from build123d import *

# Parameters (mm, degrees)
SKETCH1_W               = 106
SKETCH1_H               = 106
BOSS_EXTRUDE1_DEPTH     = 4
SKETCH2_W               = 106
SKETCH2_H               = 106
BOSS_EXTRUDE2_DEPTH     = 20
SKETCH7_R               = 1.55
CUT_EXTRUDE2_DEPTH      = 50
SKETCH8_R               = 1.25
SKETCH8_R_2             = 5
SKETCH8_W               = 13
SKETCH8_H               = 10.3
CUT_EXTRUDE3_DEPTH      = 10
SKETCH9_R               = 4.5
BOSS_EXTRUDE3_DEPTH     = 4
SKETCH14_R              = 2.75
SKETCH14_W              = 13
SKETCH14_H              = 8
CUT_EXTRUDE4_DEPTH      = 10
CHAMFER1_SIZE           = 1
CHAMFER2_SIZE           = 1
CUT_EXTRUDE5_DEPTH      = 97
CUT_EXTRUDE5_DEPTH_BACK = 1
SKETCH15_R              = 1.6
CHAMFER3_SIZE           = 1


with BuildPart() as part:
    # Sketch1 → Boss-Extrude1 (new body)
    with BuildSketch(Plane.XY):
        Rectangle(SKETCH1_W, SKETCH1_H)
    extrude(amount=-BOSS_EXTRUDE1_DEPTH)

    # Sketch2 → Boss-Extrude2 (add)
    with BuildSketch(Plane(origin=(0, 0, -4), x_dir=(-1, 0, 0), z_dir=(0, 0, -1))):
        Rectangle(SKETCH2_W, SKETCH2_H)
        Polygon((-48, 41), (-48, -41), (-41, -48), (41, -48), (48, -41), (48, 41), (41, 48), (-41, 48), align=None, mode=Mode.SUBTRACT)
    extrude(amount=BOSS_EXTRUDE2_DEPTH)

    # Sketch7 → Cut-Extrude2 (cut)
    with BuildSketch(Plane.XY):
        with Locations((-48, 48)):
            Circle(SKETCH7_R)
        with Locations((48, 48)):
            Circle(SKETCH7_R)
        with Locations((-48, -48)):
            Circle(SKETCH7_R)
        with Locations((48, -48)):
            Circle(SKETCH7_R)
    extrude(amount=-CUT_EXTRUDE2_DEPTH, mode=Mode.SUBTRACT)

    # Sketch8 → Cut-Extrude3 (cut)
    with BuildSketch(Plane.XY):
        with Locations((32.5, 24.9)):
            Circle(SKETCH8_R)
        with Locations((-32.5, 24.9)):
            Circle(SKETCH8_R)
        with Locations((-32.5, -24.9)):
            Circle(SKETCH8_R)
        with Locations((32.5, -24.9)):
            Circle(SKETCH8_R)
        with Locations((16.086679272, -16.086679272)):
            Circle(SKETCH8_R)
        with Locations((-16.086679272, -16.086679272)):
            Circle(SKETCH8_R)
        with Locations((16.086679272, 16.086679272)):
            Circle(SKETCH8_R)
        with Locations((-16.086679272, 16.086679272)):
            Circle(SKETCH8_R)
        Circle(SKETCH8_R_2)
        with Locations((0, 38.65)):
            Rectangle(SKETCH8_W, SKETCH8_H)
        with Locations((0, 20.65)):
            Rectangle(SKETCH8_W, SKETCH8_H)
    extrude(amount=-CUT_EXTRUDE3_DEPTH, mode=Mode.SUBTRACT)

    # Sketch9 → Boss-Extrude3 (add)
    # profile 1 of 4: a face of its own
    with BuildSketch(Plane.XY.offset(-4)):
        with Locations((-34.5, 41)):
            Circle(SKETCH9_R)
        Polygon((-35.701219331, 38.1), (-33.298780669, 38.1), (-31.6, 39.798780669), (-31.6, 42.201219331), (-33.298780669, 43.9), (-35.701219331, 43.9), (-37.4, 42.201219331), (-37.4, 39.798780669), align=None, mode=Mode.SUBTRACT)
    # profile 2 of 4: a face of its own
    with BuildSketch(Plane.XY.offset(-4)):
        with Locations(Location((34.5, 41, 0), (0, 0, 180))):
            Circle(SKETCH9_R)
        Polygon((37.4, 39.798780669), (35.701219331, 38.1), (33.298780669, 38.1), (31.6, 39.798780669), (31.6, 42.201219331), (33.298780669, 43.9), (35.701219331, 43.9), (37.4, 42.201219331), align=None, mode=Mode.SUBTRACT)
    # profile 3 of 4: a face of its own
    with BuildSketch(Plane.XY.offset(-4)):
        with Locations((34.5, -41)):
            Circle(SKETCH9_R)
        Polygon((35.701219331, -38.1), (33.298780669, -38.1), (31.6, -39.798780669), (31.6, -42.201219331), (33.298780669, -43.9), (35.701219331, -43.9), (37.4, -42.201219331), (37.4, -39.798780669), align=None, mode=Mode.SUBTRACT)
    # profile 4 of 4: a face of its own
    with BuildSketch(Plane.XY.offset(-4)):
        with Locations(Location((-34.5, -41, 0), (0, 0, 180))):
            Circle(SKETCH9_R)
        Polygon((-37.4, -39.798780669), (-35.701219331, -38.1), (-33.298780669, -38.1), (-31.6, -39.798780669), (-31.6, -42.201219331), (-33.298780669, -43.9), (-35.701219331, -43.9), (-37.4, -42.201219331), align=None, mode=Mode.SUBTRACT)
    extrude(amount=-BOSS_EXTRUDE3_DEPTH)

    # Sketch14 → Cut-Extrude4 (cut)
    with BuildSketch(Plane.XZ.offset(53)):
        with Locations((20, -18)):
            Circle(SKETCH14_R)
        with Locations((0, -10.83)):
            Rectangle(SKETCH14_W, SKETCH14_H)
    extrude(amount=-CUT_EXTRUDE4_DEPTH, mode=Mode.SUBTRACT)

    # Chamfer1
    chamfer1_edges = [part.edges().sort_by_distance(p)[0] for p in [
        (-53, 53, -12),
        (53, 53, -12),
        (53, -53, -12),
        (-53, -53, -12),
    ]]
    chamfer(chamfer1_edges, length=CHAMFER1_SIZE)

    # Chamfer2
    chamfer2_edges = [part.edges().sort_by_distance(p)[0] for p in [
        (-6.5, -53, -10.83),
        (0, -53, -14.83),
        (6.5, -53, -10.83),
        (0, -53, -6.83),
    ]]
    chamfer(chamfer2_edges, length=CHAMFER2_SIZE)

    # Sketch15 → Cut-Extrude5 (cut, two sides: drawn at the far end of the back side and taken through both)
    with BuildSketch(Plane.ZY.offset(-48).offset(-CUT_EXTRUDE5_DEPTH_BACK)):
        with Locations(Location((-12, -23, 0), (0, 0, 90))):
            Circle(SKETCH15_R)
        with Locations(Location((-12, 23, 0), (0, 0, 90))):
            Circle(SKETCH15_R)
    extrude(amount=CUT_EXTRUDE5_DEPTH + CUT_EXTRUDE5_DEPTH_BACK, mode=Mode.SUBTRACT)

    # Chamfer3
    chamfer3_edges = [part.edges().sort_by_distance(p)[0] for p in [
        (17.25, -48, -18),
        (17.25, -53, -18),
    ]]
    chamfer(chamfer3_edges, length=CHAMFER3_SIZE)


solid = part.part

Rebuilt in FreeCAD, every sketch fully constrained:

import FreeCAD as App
import Part
import Sketcher

V = App.Vector


def edges_at(feature, points):
    """Names of the edges that pass closest to the given points."""
    edges = feature.Shape.Edges
    near = lambda p: min(range(len(edges)), key=lambda i: edges[i].distToShape(Part.Vertex(*p))[0])
    return sorted({f"Edge{near(p) + 1}" for p in points})

doc = App.newDocument("Part")
body = doc.addObject("PartDesign::Body", "Body")

# Sketch on XY plane
sketch1 = doc.addObject("Sketcher::SketchObject", "Sketch")
body.addObject(sketch1)
sketch1.AttachmentSupport = (doc.XY_Plane, [""])
sketch1.MapMode = "FlatFace"
sketch1.addGeometry([
    Part.LineSegment(V(-53, 53, 0), V(-53, -53, 0)),
    Part.LineSegment(V(-53, -53, 0), V(53, -53, 0)),
    Part.LineSegment(V(53, -53, 0), V(53, 53, 0)),
    Part.LineSegment(V(53, 53, 0), V(-53, 53, 0)),
], False)
sketch1.addConstraint([
    Sketcher.Constraint("Coincident", 0, 2, 1, 1),
    Sketcher.Constraint("Coincident", 1, 2, 2, 1),
    Sketcher.Constraint("Coincident", 2, 2, 3, 1),
    Sketcher.Constraint("Coincident", 3, 2, 0, 1),
    Sketcher.Constraint("Vertical", 0),
    Sketcher.Constraint("Horizontal", 1),
    Sketcher.Constraint("Vertical", 2),
    Sketcher.Constraint("Horizontal", 3),
    Sketcher.Constraint("Symmetric", 0, 2, 2, 2, -1, 1),
    Sketcher.Constraint("Equal", 3, 0),
    Sketcher.Constraint("DistanceX", 1, 1, 1, 2, 106.0),
])
pad1 = doc.addObject("PartDesign::Pad", "Pad")
body.addObject(pad1)
pad1.Profile = sketch1
pad1.Length = 4
pad1.Reversed = True

# Sketch on XY plane
sketch2 = doc.addObject("Sketcher::SketchObject", "Sketch001")
body.addObject(sketch2)
sketch2.AttachmentSupport = (doc.XY_Plane, [""])
sketch2.MapMode = "FlatFace"
sketch2.AttachmentOffset = App.Placement(V(0, 0, -4), App.Rotation())
sketch2.addGeometry([
    Part.LineSegment(V(53, 53, 0), V(53, -53, 0)),  # 0
    Part.LineSegment(V(53, -53, 0), V(-53, -53, 0)),  # 1
    Part.LineSegment(V(-53, -53, 0), V(-53, 53, 0)),  # 2
    Part.LineSegment(V(-53, 53, 0), V(53, 53, 0)),  # 3
    Part.LineSegment(V(48, -41, 0), V(48, 41, 0)),  # 4
    Part.LineSegment(V(48, 41, 0), V(41, 48, 0)),  # 5
    Part.LineSegment(V(41, 48, 0), V(-41, 48, 0)),  # 6
    Part.LineSegment(V(-41, 48, 0), V(-48, 41, 0)),  # 7
    Part.LineSegment(V(-48, 41, 0), V(-48, -41, 0)),  # 8
    Part.LineSegment(V(-48, -41, 0), V(-41, -48, 0)),  # 9
    Part.LineSegment(V(-41, -48, 0), V(41, -48, 0)),  # 10
    Part.LineSegment(V(41, -48, 0), V(48, -41, 0)),  # 11
], False)
sketch2.addConstraint([
    Sketcher.Constraint("Coincident", 0, 2, 1, 1),
    Sketcher.Constraint("Coincident", 1, 2, 2, 1),
    Sketcher.Constraint("Coincident", 2, 2, 3, 1),
    Sketcher.Constraint("Coincident", 3, 2, 0, 1),
    Sketcher.Constraint("Coincident", 4, 2, 5, 1),
    Sketcher.Constraint("Coincident", 5, 2, 6, 1),
    Sketcher.Constraint("Coincident", 6, 2, 7, 1),
    Sketcher.Constraint("Coincident", 7, 2, 8, 1),
    Sketcher.Constraint("Coincident", 8, 2, 9, 1),
    Sketcher.Constraint("Coincident", 9, 2, 10, 1),
    Sketcher.Constraint("Coincident", 10, 2, 11, 1),
    Sketcher.Constraint("Coincident", 11, 2, 4, 1),
    Sketcher.Constraint("Vertical", 0),
    Sketcher.Constraint("Horizontal", 1),
    Sketcher.Constraint("Vertical", 2),
    Sketcher.Constraint("Horizontal", 3),
    Sketcher.Constraint("Vertical", 4),
    Sketcher.Constraint("Horizontal", 6),
    Sketcher.Constraint("Vertical", 8),
    Sketcher.Constraint("Horizontal", 10),
    Sketcher.Constraint("Symmetric", 0, 2, 2, 2, -1, 1),
    Sketcher.Constraint("Symmetric", 4, 2, 8, 2, -1, 1),
    Sketcher.Constraint("Symmetric", 5, 2, 9, 2, -1, 1),
    Sketcher.Constraint("Perpendicular", 5, 7),
    Sketcher.Constraint("Perpendicular", 9, 11),
    Sketcher.Constraint("Horizontal", 4, 2, 7, 2),
    Sketcher.Constraint("Horizontal", 8, 2, 11, 2),
    Sketcher.Constraint("Vertical", 6, 2, 9, 2),
    Sketcher.Constraint("Equal", 3, 0),
    Sketcher.Constraint("Equal", 10, 4),
    Sketcher.Constraint("DistanceX", 1, 2, 1, 1, 106.0),
    Sketcher.Constraint("DistanceX", 6, 2, 6, 1, 82.0),
    Sketcher.Constraint("DistanceX", -1, 1, 4, 2, 48.0),
])
pad2 = doc.addObject("PartDesign::Pad", "Pad001")
body.addObject(pad2)
pad2.Profile = sketch2
pad2.Length = 20
pad2.Reversed = True

# Sketch on XY plane
sketch3 = doc.addObject("Sketcher::SketchObject", "Sketch002")
body.addObject(sketch3)
sketch3.AttachmentSupport = (doc.XY_Plane, [""])
sketch3.MapMode = "FlatFace"
sketch3.addGeometry([
    Part.Circle(V(-48, 48, 0), V(0, 0, 1), 1.6),
    Part.Circle(V(48, 48, 0), V(0, 0, 1), 1.6),
    Part.Circle(V(-48, -48, 0), V(0, 0, 1), 1.6),
    Part.Circle(V(48, -48, 0), V(0, 0, 1), 1.6),
], False)
sketch3.addConstraint([
    Sketcher.Constraint("Equal", 0, 1),
    Sketcher.Constraint("Equal", 1, 2),
    Sketcher.Constraint("Equal", 2, 3),
    Sketcher.Constraint("Symmetric", 1, 3, 2, 3, -1, 1),
    Sketcher.Constraint("Symmetric", 0, 3, 3, 3, -1, 1),
    Sketcher.Constraint("Symmetric", 0, 3, 1, 3, -2),
    Sketcher.Constraint("Diameter", 0, 3.1),
    Sketcher.Constraint("DistanceX", 0, 3, -1, 1, 48.0),
    Sketcher.Constraint("DistanceY", -1, 1, 0, 3, 48.0),
])
pocket1 = doc.addObject("PartDesign::Pocket", "Pocket")
body.addObject(pocket1)
pocket1.Profile = sketch3
pocket1.Length = 50

# Sketch on XY plane
sketch4 = doc.addObject("Sketcher::SketchObject", "Sketch003")
body.addObject(sketch4)
sketch4.AttachmentSupport = (doc.XY_Plane, [""])
sketch4.MapMode = "FlatFace"
sketch4.addGeometry([
    Part.Circle(V(32.5, 24.9, 0), V(0, 0, 1), 1.2),  # 0
    Part.Circle(V(-32.5, 24.9, 0), V(0, 0, 1), 1.2),  # 1
    Part.Circle(V(-32.5, -24.9, 0), V(0, 0, 1), 1.2),  # 2
    Part.Circle(V(32.5, -24.9, 0), V(0, 0, 1), 1.2),  # 3
    Part.Circle(V(16.1, -16.1, 0), V(0, 0, 1), 1.2),  # 4
    Part.Circle(V(-16.1, -16.1, 0), V(0, 0, 1), 1.2),  # 5
    Part.Circle(V(16.1, 16.1, 0), V(0, 0, 1), 1.2),  # 6
    Part.Circle(V(-16.1, 16.1, 0), V(0, 0, 1), 1.2),  # 7
    Part.Circle(V(0, 0, 0), V(0, 0, 1), 5),  # 8
    Part.LineSegment(V(-6.5, 43.8, 0), V(-6.5, 33.5, 0)),  # 9
    Part.LineSegment(V(-6.5, 33.5, 0), V(6.5, 33.5, 0)),  # 10
    Part.LineSegment(V(6.5, 33.5, 0), V(6.5, 43.8, 0)),  # 11
    Part.LineSegment(V(6.5, 43.8, 0), V(-6.5, 43.8, 0)),  # 12
    Part.LineSegment(V(-6.5, 25.8, 0), V(-6.5, 15.5, 0)),  # 13
    Part.LineSegment(V(-6.5, 15.5, 0), V(6.5, 15.5, 0)),  # 14
    Part.LineSegment(V(6.5, 15.5, 0), V(6.5, 25.8, 0)),  # 15
    Part.LineSegment(V(6.5, 25.8, 0), V(-6.5, 25.8, 0)),  # 16
], False)
sketch4.addConstraint([
    Sketcher.Constraint("Coincident", 9, 2, 10, 1),
    Sketcher.Constraint("Coincident", 10, 2, 11, 1),
    Sketcher.Constraint("Coincident", 11, 2, 12, 1),
    Sketcher.Constraint("Coincident", 12, 2, 9, 1),
    Sketcher.Constraint("Coincident", 13, 2, 14, 1),
    Sketcher.Constraint("Coincident", 14, 2, 15, 1),
    Sketcher.Constraint("Coincident", 15, 2, 16, 1),
    Sketcher.Constraint("Coincident", 16, 2, 13, 1),
    Sketcher.Constraint("Vertical", 9),
    Sketcher.Constraint("Horizontal", 10),
    Sketcher.Constraint("Vertical", 11),
    Sketcher.Constraint("Horizontal", 12),
    Sketcher.Constraint("Vertical", 13),
    Sketcher.Constraint("Horizontal", 14),
    Sketcher.Constraint("Vertical", 15),
    Sketcher.Constraint("Horizontal", 16),
    Sketcher.Constraint("Coincident", 8, 3, -1, 1),
    Sketcher.Constraint("Equal", 0, 1),
    Sketcher.Constraint("Equal", 1, 2),
    Sketcher.Constraint("Equal", 2, 3),
    Sketcher.Constraint("Equal", 3, 4),
    Sketcher.Constraint("Equal", 4, 5),
    Sketcher.Constraint("Equal", 5, 6),
    Sketcher.Constraint("Equal", 6, 7),
    Sketcher.Constraint("Symmetric", 0, 3, 2, 3, -1, 1),
    Sketcher.Constraint("Symmetric", 1, 3, 3, 3, -1, 1),
    Sketcher.Constraint("Symmetric", 5, 3, 6, 3, -1, 1),
    Sketcher.Constraint("Symmetric", 4, 3, 7, 3, -1, 1),
    Sketcher.Constraint("Symmetric", 0, 3, 1, 3, -2),
    Sketcher.Constraint("Symmetric", 4, 3, 5, 3, -2),
    Sketcher.Constraint("Vertical", 12, 2, 13, 2),
    Sketcher.Constraint("Vertical", 11, 2, 14, 2),
    Sketcher.Constraint("Equal", 11, 13),
    Sketcher.Constraint("Diameter", 8, 10.0),
    Sketcher.Constraint("Diameter", 0, 2.5),
    Sketcher.Constraint("DistanceX", 10, 1, 10, 2, 13.0),
    Sketcher.Constraint("DistanceY", 9, 2, 9, 1, 10.3),
    Sketcher.Constraint("DistanceX", 1, 3, 0, 3, 65.0),
    Sketcher.Constraint("DistanceX", 1, 3, 9, 2, 26.0),
    Sketcher.Constraint("DistanceY", 13, 2, 9, 2, 18.0),
    Sketcher.Constraint("DistanceY", -1, 1, 0, 3, 24.9),
    Sketcher.Constraint("DistanceY", -1, 1, 9, 2, 33.5),
    Sketcher.Constraint("DistanceX", -1, 1, 4, 3, 16.086679),
    Sketcher.Constraint("DistanceY", 4, 3, -1, 1, 16.086679),
])
pocket2 = doc.addObject("PartDesign::Pocket", "Pocket001")
body.addObject(pocket2)
pocket2.Profile = sketch4
pocket2.Length = 10

# Sketch on XY plane
sketch5 = doc.addObject("Sketcher::SketchObject", "Sketch004")
body.addObject(sketch5)
sketch5.AttachmentSupport = (doc.XY_Plane, [""])
sketch5.MapMode = "FlatFace"
sketch5.AttachmentOffset = App.Placement(V(0, 0, -4), App.Rotation())
sketch5.addGeometry([
    Part.Circle(V(-34.5, 41, 0), V(0, 0, 1), 4.5),  # 0
    Part.LineSegment(V(-33.3, 38.1, 0), V(-35.7, 38.1, 0)),  # 1
    Part.LineSegment(V(-35.7, 38.1, 0), V(-37.4, 39.8, 0)),  # 2
    Part.LineSegment(V(-37.4, 39.8, 0), V(-37.4, 42.2, 0)),  # 3
    Part.LineSegment(V(-37.4, 42.2, 0), V(-35.7, 43.9, 0)),  # 4
    Part.LineSegment(V(-35.7, 43.9, 0), V(-33.3, 43.9, 0)),  # 5
    Part.LineSegment(V(-33.3, 43.9, 0), V(-31.6, 42.2, 0)),  # 6
    Part.LineSegment(V(-31.6, 42.2, 0), V(-31.6, 39.8, 0)),  # 7
    Part.LineSegment(V(-31.6, 39.8, 0), V(-33.3, 38.1, 0)),  # 8
    Part.Circle(V(34.5, 41, 0), V(0, 0, 1), 4.5),  # 9
    Part.LineSegment(V(37.4, 42.2, 0), V(37.4, 39.8, 0)),  # 10
    Part.LineSegment(V(37.4, 39.8, 0), V(35.7, 38.1, 0)),  # 11
    Part.LineSegment(V(35.7, 38.1, 0), V(33.3, 38.1, 0)),  # 12
    Part.LineSegment(V(33.3, 38.1, 0), V(31.6, 39.8, 0)),  # 13
    Part.LineSegment(V(31.6, 39.8, 0), V(31.6, 42.2, 0)),  # 14
    Part.LineSegment(V(31.6, 42.2, 0), V(33.3, 43.9, 0)),  # 15
    Part.LineSegment(V(33.3, 43.9, 0), V(35.7, 43.9, 0)),  # 16
    Part.LineSegment(V(35.7, 43.9, 0), V(37.4, 42.2, 0)),  # 17
    Part.Circle(V(34.5, -41, 0), V(0, 0, 1), 4.5),  # 18
    Part.LineSegment(V(33.3, -38.1, 0), V(35.7, -38.1, 0)),  # 19
    Part.LineSegment(V(35.7, -38.1, 0), V(37.4, -39.8, 0)),  # 20
    Part.LineSegment(V(37.4, -39.8, 0), V(37.4, -42.2, 0)),  # 21
    Part.LineSegment(V(37.4, -42.2, 0), V(35.7, -43.9, 0)),  # 22
    Part.LineSegment(V(35.7, -43.9, 0), V(33.3, -43.9, 0)),  # 23
    Part.LineSegment(V(33.3, -43.9, 0), V(31.6, -42.2, 0)),  # 24
    Part.LineSegment(V(31.6, -42.2, 0), V(31.6, -39.8, 0)),  # 25
    Part.LineSegment(V(31.6, -39.8, 0), V(33.3, -38.1, 0)),  # 26
    Part.Circle(V(-34.5, -41, 0), V(0, 0, 1), 4.5),  # 27
    Part.LineSegment(V(-37.4, -42.2, 0), V(-37.4, -39.8, 0)),  # 28
    Part.LineSegment(V(-37.4, -39.8, 0), V(-35.7, -38.1, 0)),  # 29
    Part.LineSegment(V(-35.7, -38.1, 0), V(-33.3, -38.1, 0)),  # 30
    Part.LineSegment(V(-33.3, -38.1, 0), V(-31.6, -39.8, 0)),  # 31
    Part.LineSegment(V(-31.6, -39.8, 0), V(-31.6, -42.2, 0)),  # 32
    Part.LineSegment(V(-31.6, -42.2, 0), V(-33.3, -43.9, 0)),  # 33
    Part.LineSegment(V(-33.3, -43.9, 0), V(-35.7, -43.9, 0)),  # 34
    Part.LineSegment(V(-35.7, -43.9, 0), V(-37.4, -42.2, 0)),  # 35
], False)
sketch5.addConstraint([
    Sketcher.Constraint("Coincident", 1, 2, 2, 1),
    Sketcher.Constraint("Coincident", 2, 2, 3, 1),
    Sketcher.Constraint("Coincident", 3, 2, 4, 1),
    Sketcher.Constraint("Coincident", 4, 2, 5, 1),
    Sketcher.Constraint("Coincident", 5, 2, 6, 1),
    Sketcher.Constraint("Coincident", 6, 2, 7, 1),
    Sketcher.Constraint("Coincident", 7, 2, 8, 1),
    Sketcher.Constraint("Coincident", 8, 2, 1, 1),
    Sketcher.Constraint("Coincident", 10, 2, 11, 1),
    Sketcher.Constraint("Coincident", 11, 2, 12, 1),
    Sketcher.Constraint("Coincident", 12, 2, 13, 1),
    Sketcher.Constraint("Coincident", 13, 2, 14, 1),
    Sketcher.Constraint("Coincident", 14, 2, 15, 1),
    Sketcher.Constraint("Coincident", 15, 2, 16, 1),
    Sketcher.Constraint("Coincident", 16, 2, 17, 1),
    Sketcher.Constraint("Coincident", 17, 2, 10, 1),
    Sketcher.Constraint("Coincident", 19, 2, 20, 1),
    Sketcher.Constraint("Coincident", 20, 2, 21, 1),
    Sketcher.Constraint("Coincident", 21, 2, 22, 1),
    Sketcher.Constraint("Coincident", 22, 2, 23, 1),
    Sketcher.Constraint("Coincident", 23, 2, 24, 1),
    Sketcher.Constraint("Coincident", 24, 2, 25, 1),
    Sketcher.Constraint("Coincident", 25, 2, 26, 1),
    Sketcher.Constraint("Coincident", 26, 2, 19, 1),
    Sketcher.Constraint("Coincident", 28, 2, 29, 1),
    Sketcher.Constraint("Coincident", 29, 2, 30, 1),
    Sketcher.Constraint("Coincident", 30, 2, 31, 1),
    Sketcher.Constraint("Coincident", 31, 2, 32, 1),
    Sketcher.Constraint("Coincident", 32, 2, 33, 1),
    Sketcher.Constraint("Coincident", 33, 2, 34, 1),
    Sketcher.Constraint("Coincident", 34, 2, 35, 1),
    Sketcher.Constraint("Coincident", 35, 2, 28, 1),
    Sketcher.Constraint("Horizontal", 1),
    Sketcher.Constraint("Vertical", 3),
    Sketcher.Constraint("Horizontal", 5),
    Sketcher.Constraint("Vertical", 7),
    Sketcher.Constraint("Vertical", 10),
    Sketcher.Constraint("Horizontal", 12),
    Sketcher.Constraint("Vertical", 14),
    Sketcher.Constraint("Horizontal", 16),
    Sketcher.Constraint("Horizontal", 19),
    Sketcher.Constraint("Vertical", 21),
    Sketcher.Constraint("Horizontal", 23),
    Sketcher.Constraint("Vertical", 25),
    Sketcher.Constraint("Vertical", 28),
    Sketcher.Constraint("Horizontal", 30),
    Sketcher.Constraint("Vertical", 32),
    Sketcher.Constraint("Horizontal", 34),
    Sketcher.Constraint("Equal", 0, 9),
    Sketcher.Constraint("Equal", 9, 18),
    Sketcher.Constraint("Equal", 18, 27),
    Sketcher.Constraint("Symmetric", 0, 3, 18, 3, -1, 1),
    Sketcher.Constraint("Symmetric", 9, 3, 27, 3, -1, 1),
    Sketcher.Constraint("Symmetric", 1, 2, 19, 2, -1, 1),
    Sketcher.Constraint("Symmetric", 2, 2, 20, 2, -1, 1),
    Sketcher.Constraint("Symmetric", 4, 2, 22, 2, -1, 1),
    Sketcher.Constraint("Symmetric", 6, 2, 24, 2, -1, 1),
    Sketcher.Constraint("Symmetric", 10, 2, 28, 2, -1, 1),
    Sketcher.Constraint("Symmetric", 11, 2, 29, 2, -1, 1),
    Sketcher.Constraint("Symmetric", 13, 2, 31, 2, -1, 1),
    Sketcher.Constraint("Symmetric", 15, 2, 33, 2, -1, 1),
    Sketcher.Constraint("Symmetric", 0, 3, 9, 3, -2),
    Sketcher.Constraint("Symmetric", 2, 2, 10, 2, -2),
    Sketcher.Constraint("Symmetric", 1, 2, 11, 2, -2),
    Sketcher.Constraint("Symmetric", 7, 2, 13, 2, -2),
    Sketcher.Constraint("Symmetric", 5, 2, 15, 2, -2),
    Sketcher.Constraint("Perpendicular", 2, 4),
    Sketcher.Constraint("Perpendicular", 4, 6),
    Sketcher.Constraint("Perpendicular", 6, 8),
    Sketcher.Constraint("Parallel", 8, 11),
    Sketcher.Constraint("Perpendicular", 11, 13),
    Sketcher.Constraint("Perpendicular", 13, 15),
    Sketcher.Constraint("Perpendicular", 15, 17),
    Sketcher.Constraint("Perpendicular", 20, 22),
    Sketcher.Constraint("Perpendicular", 22, 24),
    Sketcher.Constraint("Perpendicular", 24, 26),
    Sketcher.Constraint("Perpendicular", 29, 31),
    Sketcher.Constraint("Perpendicular", 31, 33),
    Sketcher.Constraint("Perpendicular", 33, 35),
    Sketcher.Constraint("Horizontal", 3, 2, 6, 2),
    Sketcher.Constraint("Horizontal", 2, 2, 7, 2),
    Sketcher.Constraint("Horizontal", 14, 2, 17, 2),
    Sketcher.Constraint("Horizontal", 20, 2, 25, 2),
    Sketcher.Constraint("Horizontal", 32, 2, 35, 2),
    Sketcher.Constraint("Vertical", 1, 2, 4, 2),
    Sketcher.Constraint("Equal", 34, 3),
    Sketcher.Constraint("Diameter", 0, 9.0),
    Sketcher.Constraint("DistanceY", -1, 1, 0, 3, 41.0),
    Sketcher.Constraint("DistanceX", 0, 3, 9, 3, 69.0),
    Sketcher.Constraint("DistanceX", 7, 2, 10, 2, 69.0),
    Sketcher.Constraint("DistanceY", -1, 1, 1, 2, 38.1),
    Sketcher.Constraint("DistanceX", 2, 2, -1, 1, 37.4),
    Sketcher.Constraint("DistanceX", 1, 2, 1, 1, 2.402439),
])
pad3 = doc.addObject("PartDesign::Pad", "Pad002")
body.addObject(pad3)
pad3.Profile = sketch5
pad3.Length = 4
pad3.Reversed = True

# Sketch on XZ plane
sketch6 = doc.addObject("Sketcher::SketchObject", "Sketch005")
body.addObject(sketch6)
sketch6.AttachmentSupport = (doc.XZ_Plane, [""])
sketch6.MapMode = "FlatFace"
sketch6.AttachmentOffset = App.Placement(V(0, 0, 53), App.Rotation())
sketch6.addGeometry([
    Part.Circle(V(20, -18, 0), V(0, 0, 1), 2.8),  # 0
    Part.LineSegment(V(-6.5, -6.8, 0), V(-6.5, -14.8, 0)),  # 1
    Part.LineSegment(V(-6.5, -14.8, 0), V(6.5, -14.8, 0)),  # 2
    Part.LineSegment(V(6.5, -14.8, 0), V(6.5, -6.8, 0)),  # 3
    Part.LineSegment(V(6.5, -6.8, 0), V(-6.5, -6.8, 0)),  # 4
], False)
sketch6.addConstraint([
    Sketcher.Constraint("Coincident", 1, 2, 2, 1),
    Sketcher.Constraint("Coincident", 2, 2, 3, 1),
    Sketcher.Constraint("Coincident", 3, 2, 4, 1),
    Sketcher.Constraint("Coincident", 4, 2, 1, 1),
    Sketcher.Constraint("Vertical", 1),
    Sketcher.Constraint("Horizontal", 2),
    Sketcher.Constraint("Vertical", 3),
    Sketcher.Constraint("Horizontal", 4),
    Sketcher.Constraint("Diameter", 0, 5.5),
    Sketcher.Constraint("DistanceX", 2, 1, 2, 2, 13.0),
    Sketcher.Constraint("DistanceY", 1, 2, 1, 1, 8.0),
    Sketcher.Constraint("DistanceX", -1, 1, 0, 3, 20.0),
    Sketcher.Constraint("DistanceY", 0, 3, -1, 1, 18.0),
    Sketcher.Constraint("DistanceX", 1, 2, -1, 1, 6.5),
    Sketcher.Constraint("DistanceY", 1, 2, -1, 1, 14.83),
])
pocket3 = doc.addObject("PartDesign::Pocket", "Pocket002")
body.addObject(pocket3)
pocket3.Profile = sketch6
pocket3.Length = 10
doc.recompute()

chamfer = doc.addObject("PartDesign::Chamfer", "Chamfer")
body.addObject(chamfer)
chamfer.Base = (pocket3, edges_at(pocket3, [
    (-53, 53, -12),
    (53, 53, -12),
    (53, -53, -12),
    (-53, -53, -12),
]))
chamfer.Size = 1
doc.recompute()

chamfer2 = doc.addObject("PartDesign::Chamfer", "Chamfer001")
body.addObject(chamfer2)
chamfer2.Base = (chamfer, edges_at(chamfer, [
    (-6.5, -53, -10.83),
    (0, -53, -14.83),
    (6.5, -53, -10.83),
    (0, -53, -6.83),
]))
chamfer2.Size = 1

# Sketch on YZ plane
sketch7 = doc.addObject("Sketcher::SketchObject", "Sketch006")
body.addObject(sketch7)
sketch7.AttachmentSupport = (doc.YZ_Plane, [""])
sketch7.MapMode = "FlatFace"
sketch7.AttachmentOffset = App.Placement(V(0, 0, 48), App.Rotation())
sketch7.addGeometry([
    Part.Circle(V(-23, -12, 0), V(0, 0, 1), 1.6),
    Part.Circle(V(23, -12, 0), V(0, 0, 1), 1.6),
], False)
sketch7.addConstraint([
    Sketcher.Constraint("Equal", 0, 1),
    Sketcher.Constraint("Symmetric", 0, 3, 1, 3, -2),
    Sketcher.Constraint("Diameter", 0, 3.2),
    Sketcher.Constraint("DistanceX", 0, 3, -1, 1, 23.0),
    Sketcher.Constraint("DistanceY", 0, 3, -1, 1, 12.0),
])
pocket4 = doc.addObject("PartDesign::Pocket", "Pocket003")
body.addObject(pocket4)
pocket4.Profile = sketch7
pocket4.Type = "TwoLengths"
pocket4.Length = 97
pocket4.Length2 = 1
doc.recompute()

chamfer3 = doc.addObject("PartDesign::Chamfer", "Chamfer002")
body.addObject(chamfer3)
chamfer3.Base = (pocket4, edges_at(pocket4, [(17.25, -48, -18), (17.25, -53, -18)]))
chamfer3.Size = 1

doc.recompute()
